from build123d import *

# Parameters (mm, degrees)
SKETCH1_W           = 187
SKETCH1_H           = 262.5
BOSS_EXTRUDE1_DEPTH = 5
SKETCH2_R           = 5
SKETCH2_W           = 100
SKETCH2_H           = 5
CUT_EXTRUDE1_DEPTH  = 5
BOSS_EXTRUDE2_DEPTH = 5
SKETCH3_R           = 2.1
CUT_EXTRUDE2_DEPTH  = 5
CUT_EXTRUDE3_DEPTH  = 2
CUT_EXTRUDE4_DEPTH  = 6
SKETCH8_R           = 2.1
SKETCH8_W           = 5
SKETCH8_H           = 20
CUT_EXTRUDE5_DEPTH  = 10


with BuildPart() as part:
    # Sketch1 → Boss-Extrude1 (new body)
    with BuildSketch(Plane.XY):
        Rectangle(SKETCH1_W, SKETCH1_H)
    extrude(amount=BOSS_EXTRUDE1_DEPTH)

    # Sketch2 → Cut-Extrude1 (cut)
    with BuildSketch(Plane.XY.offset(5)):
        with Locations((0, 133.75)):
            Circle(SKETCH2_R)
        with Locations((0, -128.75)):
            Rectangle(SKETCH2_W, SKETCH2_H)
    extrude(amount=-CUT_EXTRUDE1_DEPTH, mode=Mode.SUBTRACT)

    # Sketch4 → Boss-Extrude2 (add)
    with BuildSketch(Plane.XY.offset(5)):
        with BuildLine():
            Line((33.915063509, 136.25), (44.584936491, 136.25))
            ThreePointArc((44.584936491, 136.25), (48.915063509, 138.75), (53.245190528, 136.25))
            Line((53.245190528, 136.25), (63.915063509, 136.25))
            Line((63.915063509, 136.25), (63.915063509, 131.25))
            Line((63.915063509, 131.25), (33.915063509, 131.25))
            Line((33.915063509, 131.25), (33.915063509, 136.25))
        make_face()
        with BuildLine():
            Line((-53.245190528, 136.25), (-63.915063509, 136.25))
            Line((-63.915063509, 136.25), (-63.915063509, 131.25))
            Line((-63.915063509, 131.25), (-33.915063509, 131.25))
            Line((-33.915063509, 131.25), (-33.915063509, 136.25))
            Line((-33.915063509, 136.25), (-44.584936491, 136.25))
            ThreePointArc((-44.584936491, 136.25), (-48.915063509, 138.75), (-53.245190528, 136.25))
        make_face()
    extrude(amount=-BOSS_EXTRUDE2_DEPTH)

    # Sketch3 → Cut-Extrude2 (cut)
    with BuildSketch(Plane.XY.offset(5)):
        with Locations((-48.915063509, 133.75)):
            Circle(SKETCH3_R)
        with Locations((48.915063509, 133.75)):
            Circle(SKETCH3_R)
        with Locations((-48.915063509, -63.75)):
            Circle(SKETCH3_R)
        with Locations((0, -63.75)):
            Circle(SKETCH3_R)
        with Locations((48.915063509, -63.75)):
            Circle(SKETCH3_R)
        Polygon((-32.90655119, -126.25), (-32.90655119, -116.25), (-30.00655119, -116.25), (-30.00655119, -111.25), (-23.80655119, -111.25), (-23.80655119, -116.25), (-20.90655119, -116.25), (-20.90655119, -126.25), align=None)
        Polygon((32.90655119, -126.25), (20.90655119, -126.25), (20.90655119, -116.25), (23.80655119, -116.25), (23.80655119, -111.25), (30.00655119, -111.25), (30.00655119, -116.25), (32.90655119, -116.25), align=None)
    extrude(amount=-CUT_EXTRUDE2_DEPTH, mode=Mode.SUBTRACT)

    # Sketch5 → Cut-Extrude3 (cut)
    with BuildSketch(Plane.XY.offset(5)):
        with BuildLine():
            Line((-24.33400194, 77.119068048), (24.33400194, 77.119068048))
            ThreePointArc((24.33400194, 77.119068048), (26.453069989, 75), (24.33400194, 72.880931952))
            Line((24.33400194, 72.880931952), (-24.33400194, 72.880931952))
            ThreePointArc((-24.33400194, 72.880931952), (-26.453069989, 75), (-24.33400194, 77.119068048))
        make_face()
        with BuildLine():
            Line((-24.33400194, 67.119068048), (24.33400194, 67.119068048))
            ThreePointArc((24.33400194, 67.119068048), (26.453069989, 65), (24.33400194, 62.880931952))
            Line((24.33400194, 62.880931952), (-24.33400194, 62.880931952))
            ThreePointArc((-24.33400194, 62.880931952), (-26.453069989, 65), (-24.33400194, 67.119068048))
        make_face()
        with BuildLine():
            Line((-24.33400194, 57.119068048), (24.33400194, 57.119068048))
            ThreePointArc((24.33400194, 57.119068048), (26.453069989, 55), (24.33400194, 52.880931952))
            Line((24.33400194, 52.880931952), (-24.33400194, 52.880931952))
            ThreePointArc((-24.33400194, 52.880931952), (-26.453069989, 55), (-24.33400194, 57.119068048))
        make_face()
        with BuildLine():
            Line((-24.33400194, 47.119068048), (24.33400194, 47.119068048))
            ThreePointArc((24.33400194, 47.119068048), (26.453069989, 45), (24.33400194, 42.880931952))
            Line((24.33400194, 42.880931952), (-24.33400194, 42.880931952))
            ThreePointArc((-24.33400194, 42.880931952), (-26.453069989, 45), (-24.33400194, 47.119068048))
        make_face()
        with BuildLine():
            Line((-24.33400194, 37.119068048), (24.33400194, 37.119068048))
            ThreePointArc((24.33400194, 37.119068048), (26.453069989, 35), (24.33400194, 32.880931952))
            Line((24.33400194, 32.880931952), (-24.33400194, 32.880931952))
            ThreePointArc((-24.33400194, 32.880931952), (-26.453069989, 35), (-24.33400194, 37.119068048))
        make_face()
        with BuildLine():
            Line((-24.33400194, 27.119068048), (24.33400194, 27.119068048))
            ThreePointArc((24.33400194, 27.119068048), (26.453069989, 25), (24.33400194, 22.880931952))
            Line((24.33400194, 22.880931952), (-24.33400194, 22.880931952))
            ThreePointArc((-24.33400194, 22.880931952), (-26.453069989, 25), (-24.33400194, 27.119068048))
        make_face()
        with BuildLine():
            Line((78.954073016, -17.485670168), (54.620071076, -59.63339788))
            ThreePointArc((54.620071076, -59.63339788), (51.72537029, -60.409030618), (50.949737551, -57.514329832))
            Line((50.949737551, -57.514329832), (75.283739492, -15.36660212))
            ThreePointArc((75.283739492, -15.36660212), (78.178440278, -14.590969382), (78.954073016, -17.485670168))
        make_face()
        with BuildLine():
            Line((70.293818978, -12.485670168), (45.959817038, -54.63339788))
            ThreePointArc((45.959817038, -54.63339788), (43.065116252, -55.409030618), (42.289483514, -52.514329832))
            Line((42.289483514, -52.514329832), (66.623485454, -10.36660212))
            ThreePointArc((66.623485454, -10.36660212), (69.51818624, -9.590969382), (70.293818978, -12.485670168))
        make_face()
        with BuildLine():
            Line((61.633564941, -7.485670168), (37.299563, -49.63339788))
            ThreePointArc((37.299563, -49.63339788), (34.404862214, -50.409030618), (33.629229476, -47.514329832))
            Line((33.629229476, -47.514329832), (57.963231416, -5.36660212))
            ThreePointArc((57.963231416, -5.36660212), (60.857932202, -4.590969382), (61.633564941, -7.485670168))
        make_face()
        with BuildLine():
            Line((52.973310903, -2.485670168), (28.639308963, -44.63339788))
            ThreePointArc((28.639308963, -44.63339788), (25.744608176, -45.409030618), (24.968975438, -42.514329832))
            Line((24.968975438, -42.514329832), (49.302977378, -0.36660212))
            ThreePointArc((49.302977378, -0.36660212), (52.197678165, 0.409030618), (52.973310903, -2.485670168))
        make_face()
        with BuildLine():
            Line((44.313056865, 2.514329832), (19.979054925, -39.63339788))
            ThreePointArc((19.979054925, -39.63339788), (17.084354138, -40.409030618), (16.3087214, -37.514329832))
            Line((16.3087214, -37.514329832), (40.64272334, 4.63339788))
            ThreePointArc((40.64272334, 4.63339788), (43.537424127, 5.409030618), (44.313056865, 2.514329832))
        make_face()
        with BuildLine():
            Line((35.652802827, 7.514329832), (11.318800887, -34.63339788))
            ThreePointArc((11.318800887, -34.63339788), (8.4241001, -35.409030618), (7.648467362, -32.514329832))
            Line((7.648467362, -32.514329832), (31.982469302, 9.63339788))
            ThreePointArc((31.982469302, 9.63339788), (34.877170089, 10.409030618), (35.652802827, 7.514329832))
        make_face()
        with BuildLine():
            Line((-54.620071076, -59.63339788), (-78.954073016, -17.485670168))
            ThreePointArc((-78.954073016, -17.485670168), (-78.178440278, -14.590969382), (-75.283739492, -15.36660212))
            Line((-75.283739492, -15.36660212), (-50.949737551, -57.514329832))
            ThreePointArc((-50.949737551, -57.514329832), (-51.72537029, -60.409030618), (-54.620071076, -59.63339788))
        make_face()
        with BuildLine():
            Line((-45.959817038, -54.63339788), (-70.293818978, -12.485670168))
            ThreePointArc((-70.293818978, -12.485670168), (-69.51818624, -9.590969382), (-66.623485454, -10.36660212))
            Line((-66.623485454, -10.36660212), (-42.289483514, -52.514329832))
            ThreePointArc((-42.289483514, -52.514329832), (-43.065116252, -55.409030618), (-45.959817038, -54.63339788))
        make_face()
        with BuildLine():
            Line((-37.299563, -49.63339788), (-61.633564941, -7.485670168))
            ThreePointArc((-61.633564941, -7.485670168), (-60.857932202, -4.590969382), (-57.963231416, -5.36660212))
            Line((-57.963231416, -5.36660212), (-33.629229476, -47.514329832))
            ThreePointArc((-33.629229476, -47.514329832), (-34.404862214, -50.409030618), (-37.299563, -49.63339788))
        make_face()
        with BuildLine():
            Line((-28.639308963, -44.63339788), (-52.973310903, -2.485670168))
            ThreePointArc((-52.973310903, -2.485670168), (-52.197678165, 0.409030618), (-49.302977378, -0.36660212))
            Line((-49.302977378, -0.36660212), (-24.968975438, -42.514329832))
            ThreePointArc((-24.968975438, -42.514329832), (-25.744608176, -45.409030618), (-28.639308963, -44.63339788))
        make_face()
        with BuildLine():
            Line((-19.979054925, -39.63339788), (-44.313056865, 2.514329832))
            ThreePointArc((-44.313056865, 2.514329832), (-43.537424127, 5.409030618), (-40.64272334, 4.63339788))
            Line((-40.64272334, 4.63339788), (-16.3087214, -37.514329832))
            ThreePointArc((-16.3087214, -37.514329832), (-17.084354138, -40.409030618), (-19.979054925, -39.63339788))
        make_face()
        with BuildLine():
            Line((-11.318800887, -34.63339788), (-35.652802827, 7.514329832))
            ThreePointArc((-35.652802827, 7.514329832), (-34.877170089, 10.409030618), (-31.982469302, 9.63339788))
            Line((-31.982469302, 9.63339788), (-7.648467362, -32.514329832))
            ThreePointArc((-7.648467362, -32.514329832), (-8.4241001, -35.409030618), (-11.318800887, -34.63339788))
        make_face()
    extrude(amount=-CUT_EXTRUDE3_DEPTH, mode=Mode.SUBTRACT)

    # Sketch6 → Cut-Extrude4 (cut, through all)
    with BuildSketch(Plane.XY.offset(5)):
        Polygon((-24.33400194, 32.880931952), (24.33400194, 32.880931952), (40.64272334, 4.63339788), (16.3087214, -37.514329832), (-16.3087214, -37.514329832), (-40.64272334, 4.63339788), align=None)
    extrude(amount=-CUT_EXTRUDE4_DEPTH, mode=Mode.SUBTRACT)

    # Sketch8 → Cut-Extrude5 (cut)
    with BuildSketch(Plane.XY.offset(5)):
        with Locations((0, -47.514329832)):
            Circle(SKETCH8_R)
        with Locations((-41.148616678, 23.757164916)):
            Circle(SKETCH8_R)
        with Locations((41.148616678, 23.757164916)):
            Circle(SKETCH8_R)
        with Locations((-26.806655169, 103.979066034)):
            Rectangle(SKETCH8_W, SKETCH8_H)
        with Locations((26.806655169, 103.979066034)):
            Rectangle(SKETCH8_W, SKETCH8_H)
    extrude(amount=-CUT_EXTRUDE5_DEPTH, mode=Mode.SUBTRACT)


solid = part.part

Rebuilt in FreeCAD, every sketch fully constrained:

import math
import FreeCAD as App
import Part
import Sketcher
Q = App.Units.Quantity


def add_polygon(sketch, points):
    """Adds a closed chain of lines whose ends are joined by coincident constraints."""
    first, n = sketch.GeometryCount, len(points)
    for a, b in zip(points, points[1:] + points[:1]):
        sketch.addGeometry(Part.LineSegment(App.Vector(*a, 0), App.Vector(*b, 0)), False)
    for i in range(n):
        sketch.addConstraint(Sketcher.Constraint("Coincident", first + i, 2, first + (i + 1) % n, 1))

doc = App.newDocument("Part")
params = doc.addObject("Spreadsheet::Sheet", "Params")
for row, (alias, value) in enumerate([
    ("sketch1_width", "187 mm"),
    ("sketch1_height", "262.5 mm"),
    ("pad1_length", "5 mm"),
    ("sketch2_diameter", "10 mm"),
    ("sketch2_width", "100 mm"),
    ("sketch2_height", "5 mm"),
    ("pocket1_length", "5 mm"),
    ("sketch3_radius", "5 mm"),
    ("sketch3_width", "30 mm"),
    ("sketch3_height", "5 mm"),
    ("pad2_length", "5 mm"),
    ("sketch4_diameter", "4.2 mm"),
    ("sketch4_width", "12 mm"),
    ("sketch4_height", "10 mm"),
    ("sketch4_height2", "5 mm"),
    ("sketch4_width2", "2.9 mm"),
    ("pocket2_length", "5 mm"),
    ("pocket3_length", "2 mm"),
    ("sketch7_diameter", "4.2 mm"),
    ("sketch7_width", "5 mm"),
    ("sketch7_height", "20 mm"),
    ("pocket5_length", "10 mm"),
], start=1):
    params.set(f"A{row}", alias)
    params.set(f"B{row}", "=" + value)
    params.setAlias(f"B{row}", alias)

body = doc.addObject("PartDesign::Body", "Body")

sketch1 = doc.addObject("Sketcher::SketchObject", "Sketch")
body.addObject(sketch1)
sketch1.AttachmentSupport = (doc.XY_Plane, [""])
sketch1.MapMode = "FlatFace"
add_polygon(sketch1, [(-93.5, 131.25), (-93.5, -131.25), (93.5, -131.25), (93.5, 131.25)])
sketch1.addConstraint([
    Sketcher.Constraint("Vertical", 0),
    Sketcher.Constraint("Horizontal", 1),
    Sketcher.Constraint("Vertical", 2),
    Sketcher.Constraint("Horizontal", 3),
    Sketcher.Constraint("Symmetric", 0, 2, 2, 2, -1, 1),
    Sketcher.Constraint("DistanceX", 1, 1, 1, 2, 187.0),
    Sketcher.Constraint("DistanceY", 0, 2, 0, 1, 262.5),
])
sketch1.setExpression("Constraints[9]", "Params.sketch1_width")
sketch1.setExpression("Constraints[10]", "Params.sketch1_height")
pad1 = doc.addObject("PartDesign::Pad", "Pad")
body.addObject(pad1)
pad1.Profile = sketch1
pad1.setExpression("Length", "Params.pad1_length")

sketch2 = doc.addObject("Sketcher::SketchObject", "Sketch001")
body.addObject(sketch2)
sketch2.AttachmentSupport = (doc.XY_Plane, [""])
sketch2.MapMode = "FlatFace"
sketch2.AttachmentOffset = App.Placement(App.Vector(0, 0, 5), App.Rotation())
sketch2.addGeometry(Part.Circle(App.Vector(0, 133.75, 0), App.Vector(0, 0, 1), 5), False)
add_polygon(sketch2, [(-50, -126.25), (-50, -131.25), (50, -131.25), (50, -126.25)])
sketch2.addConstraint([
    Sketcher.Constraint("Vertical", 1),
    Sketcher.Constraint("Horizontal", 2),
    Sketcher.Constraint("Vertical", 3),
    Sketcher.Constraint("Horizontal", 4),
    Sketcher.Constraint("PointOnObject", 0, 3, -2),
    Sketcher.Constraint("Diameter", 0, 10.0),
    Sketcher.Constraint("DistanceX", 2, 1, 2, 2, 100.0),
    Sketcher.Constraint("DistanceY", 1, 2, 1, 1, 5.0),
    Sketcher.Constraint("DistanceX", 1, 2, -1, 1, 50.0),
    Sketcher.Constraint("DistanceY", 1, 2, 0, 3, 265.0),
    Sketcher.Constraint("DistanceY", -1, 1, 0, 3, 133.75),
])
sketch2.setExpression("Constraints[9]", "Params.sketch2_diameter")
sketch2.setExpression("Constraints[10]", "Params.sketch2_width")
sketch2.setExpression("Constraints[11]", "Params.sketch2_height")
pocket1 = doc.addObject("PartDesign::Pocket", "Pocket")
body.addObject(pocket1)
pocket1.Profile = sketch2
pocket1.setExpression("Length", "Params.pocket1_length")

sketch3 = doc.addObject("Sketcher::SketchObject", "Sketch002")
body.addObject(sketch3)
sketch3.AttachmentSupport = (doc.XY_Plane, [""])
sketch3.MapMode = "FlatFace"
sketch3.AttachmentOffset = App.Placement(App.Vector(0, 0, 5), App.Rotation())
sketch3.addGeometry([
    Part.LineSegment(App.Vector(44.584936, 136.25, 0), App.Vector(33.915064, 136.25, 0)),
    Part.LineSegment(App.Vector(33.915064, 136.25, 0), App.Vector(33.915064, 131.25, 0)),
    Part.LineSegment(App.Vector(33.915064, 131.25, 0), App.Vector(63.915064, 131.25, 0)),
    Part.LineSegment(App.Vector(63.915064, 131.25, 0), App.Vector(63.915064, 136.25, 0)),
    Part.LineSegment(App.Vector(63.915064, 136.25, 0), App.Vector(53.245191, 136.25, 0)),
    Part.ArcOfCircle(Part.Circle(App.Vector(48.915064, 133.75, 0), App.Vector(0, 0, 1), 5), math.radians(30), math.radians(150)),
    Part.LineSegment(App.Vector(-53.245191, 136.25, 0), App.Vector(-63.915064, 136.25, 0)),
    Part.LineSegment(App.Vector(-63.915064, 136.25, 0), App.Vector(-63.915064, 131.25, 0)),
    Part.LineSegment(App.Vector(-63.915064, 131.25, 0), App.Vector(-33.915064, 131.25, 0)),
    Part.LineSegment(App.Vector(-33.915064, 131.25, 0), App.Vector(-33.915064, 136.25, 0)),
    Part.LineSegment(App.Vector(-33.915064, 136.25, 0), App.Vector(-44.584936, 136.25, 0)),
    Part.ArcOfCircle(Part.Circle(App.Vector(-48.915064, 133.75, 0), App.Vector(0, 0, 1), 5), math.radians(30), math.radians(150)),
], False)
sketch3.addConstraint([
    Sketcher.Constraint("Coincident", 0, 2, 1, 1),
    Sketcher.Constraint("Coincident", 1, 2, 2, 1),
    Sketcher.Constraint("Coincident", 2, 2, 3, 1),
    Sketcher.Constraint("Coincident", 3, 2, 4, 1),
    Sketcher.Constraint("Coincident", 4, 2, 5, 1),
    Sketcher.Constraint("Coincident", 5, 2, 0, 1),
    Sketcher.Constraint("Coincident", 6, 2, 7, 1),
    Sketcher.Constraint("Coincident", 7, 2, 8, 1),
    Sketcher.Constraint("Coincident", 8, 2, 9, 1),
    Sketcher.Constraint("Coincident", 9, 2, 10, 1),
    Sketcher.Constraint("Coincident", 10, 2, 11, 1),
    Sketcher.Constraint("Coincident", 11, 2, 6, 1),
    Sketcher.Constraint("Horizontal", 0),
    Sketcher.Constraint("Vertical", 1),
    Sketcher.Constraint("Horizontal", 2),
    Sketcher.Constraint("Vertical", 3),
    Sketcher.Constraint("Horizontal", 4),
    Sketcher.Constraint("Horizontal", 6),
    Sketcher.Constraint("Vertical", 7),
    Sketcher.Constraint("Horizontal", 8),
    Sketcher.Constraint("Vertical", 9),
    Sketcher.Constraint("Horizontal", 10),
    Sketcher.Constraint("Equal", 5, 11),
    Sketcher.Constraint("Symmetric", 5, 3, 11, 3, -2),
    Sketcher.Constraint("Symmetric", 3, 2, 6, 2, -2),
    Sketcher.Constraint("Symmetric", 1, 2, 8, 2, -2),
    Sketcher.Constraint("Horizontal", 0, 2, 3, 2),
    Sketcher.Constraint("Horizontal", 6, 2, 9, 2),
    Sketcher.Constraint("Equal", 0, 4),
    Sketcher.Constraint("Radius", 5, 5.0),
    Sketcher.Constraint("DistanceX", 2, 1, 2, 2, 30.0),
    Sketcher.Constraint("DistanceY", 1, 2, 1, 1, 5.0),
    Sketcher.Constraint("DistanceY", 5, 3, 0, 2, 2.5),
    Sketcher.Constraint("DistanceX", 6, 2, 5, 2, 108.5),
    Sketcher.Constraint("DistanceY", -1, 1, 5, 3, 133.75),
])
sketch3.setExpression("Constraints[29]", "Params.sketch3_radius")
sketch3.setExpression("Constraints[30]", "Params.sketch3_width")
sketch3.setExpression("Constraints[31]", "Params.sketch3_height")
pad2 = doc.addObject("PartDesign::Pad", "Pad001")
body.addObject(pad2)
pad2.Profile = sketch3
pad2.setExpression("Length", "Params.pad2_length")
pad2.Reversed = True

sketch4 = doc.addObject("Sketcher::SketchObject", "Sketch003")
body.addObject(sketch4)
sketch4.AttachmentSupport = (doc.XY_Plane, [""])
sketch4.MapMode = "FlatFace"
sketch4.AttachmentOffset = App.Placement(App.Vector(0, 0, 5), App.Rotation())
sketch4.addGeometry(Part.Circle(App.Vector(-48.915064, 133.75, 0), App.Vector(0, 0, 1), 2.1), False)
sketch4.addGeometry(Part.Circle(App.Vector(48.915064, 133.75, 0), App.Vector(0, 0, 1), 2.1), False)
sketch4.addGeometry(Part.Circle(App.Vector(-48.915064, -63.75, 0), App.Vector(0, 0, 1), 2.1), False)
sketch4.addGeometry(Part.Circle(App.Vector(0, -63.75, 0), App.Vector(0, 0, 1), 2.1), False)
sketch4.addGeometry(Part.Circle(App.Vector(48.915064, -63.75, 0), App.Vector(0, 0, 1), 2.1), False)
add_polygon(sketch4, [(-32.906551, -116.25), (-32.906551, -126.25), (-20.906551, -126.25), (-20.906551, -116.25), (-23.806551, -116.25), (-23.806551, -111.25), (-30.006551, -111.25), (-30.006551, -116.25)])
add_polygon(sketch4, [(20.906551, -126.25), (32.906551, -126.25), (32.906551, -116.25), (30.006551, -116.25), (30.006551, -111.25), (23.806551, -111.25), (23.806551, -116.25), (20.906551, -116.25)])
sketch4.addConstraint([
    Sketcher.Constraint("Vertical", 5),
    Sketcher.Constraint("Horizontal", 6),
    Sketcher.Constraint("Vertical", 7),
    Sketcher.Constraint("Horizontal", 8),
    Sketcher.Constraint("Vertical", 9),
    Sketcher.Constraint("Horizontal", 10),
    Sketcher.Constraint("Vertical", 11),
    Sketcher.Constraint("Horizontal", 12),
    Sketcher.Constraint("Horizontal", 13),
    Sketcher.Constraint("Vertical", 14),
    Sketcher.Constraint("Horizontal", 15),
    Sketcher.Constraint("Vertical", 16),
    Sketcher.Constraint("Horizontal", 17),
    Sketcher.Constraint("Vertical", 18),
    Sketcher.Constraint("Horizontal", 19),
    Sketcher.Constraint("Vertical", 20),
    Sketcher.Constraint("Equal", 0, 1),
    Sketcher.Constraint("Equal", 1, 2),
    Sketcher.Constraint("Equal", 2, 3),
    Sketcher.Constraint("Equal", 3, 4),
    Sketcher.Constraint("Symmetric", 0, 3, 1, 3, -2),
    Sketcher.Constraint("Symmetric", 2, 3, 4, 3, -2),
    Sketcher.Constraint("Symmetric", 5, 2, 13, 2, -2),
    Sketcher.Constraint("Symmetric", 11, 2, 15, 2, -2),
    Sketcher.Constraint("Symmetric", 9, 2, 17, 2, -2),
    Sketcher.Constraint("Symmetric", 7, 2, 19, 2, -2),
    Sketcher.Constraint("PointOnObject", 3, 3, -2),
    Sketcher.Constraint("Horizontal", 2, 3, 3, 3),
    Sketcher.Constraint("Horizontal", 8, 2, 11, 2),
    Sketcher.Constraint("Vertical", 0, 3, 2, 3),
    Sketcher.Constraint("Equal", 8, 12),
    Sketcher.Constraint("Diameter", 0, 4.2),
    Sketcher.Constraint("DistanceX", 6, 1, 6, 2, 12.0),
    Sketcher.Constraint("DistanceY", 5, 2, 5, 1, 10.0),
    Sketcher.Constraint("DistanceY", 9, 1, 9, 2, 5.0),
    Sketcher.Constraint("DistanceX", 8, 2, 8, 1, 2.9),
    Sketcher.Constraint("DistanceY", 5, 2, 0, 3, 260.0),
    Sketcher.Constraint("DistanceY", 2, 3, 0, 3, 197.5),
    Sketcher.Constraint("DistanceY", -1, 1, 0, 3, 133.75),
    Sketcher.Constraint("DistanceX", 5, 2, -1, 1, 32.906551),
    Sketcher.Constraint("DistanceX", 0, 3, -1, 1, 48.915064),
])
sketch4.setExpression("Constraints[47]", "Params.sketch4_diameter")
sketch4.setExpression("Constraints[48]", "Params.sketch4_width")
sketch4.setExpression("Constraints[49]", "Params.sketch4_height")
sketch4.setExpression("Constraints[50]", "Params.sketch4_height2")
sketch4.setExpression("Constraints[51]", "Params.sketch4_width2")
pocket2 = doc.addObject("PartDesign::Pocket", "Pocket001")
body.addObject(pocket2)
pocket2.Profile = sketch4
pocket2.setExpression("Length", "Params.pocket2_length")

sketch5 = doc.addObject("Sketcher::SketchObject", "Sketch004")
body.addObject(sketch5)
sketch5.AttachmentSupport = (doc.XY_Plane, [""])
sketch5.MapMode = "FlatFace"
sketch5.AttachmentOffset = App.Placement(App.Vector(0, 0, 5), App.Rotation())
sketch5.addGeometry([
    Part.LineSegment(App.Vector(24.334002, 77.119068, 0), App.Vector(-24.334002, 77.119068, 0)),
    Part.ArcOfCircle(Part.Circle(App.Vector(-24.334002, 75, 0), App.Vector(0, 0, 1), 2.119068), math.radians(90), math.radians(270)),
    Part.LineSegment(App.Vector(-24.334002, 72.880932, 0), App.Vector(24.334002, 72.880932, 0)),
    Part.ArcOfCircle(Part.Circle(App.Vector(24.334002, 75, 0), App.Vector(0, 0, 1), 2.119068), math.radians(-90), math.radians(90)),
    Part.LineSegment(App.Vector(24.334002, 67.119068, 0), App.Vector(-24.334002, 67.119068, 0)),
    Part.ArcOfCircle(Part.Circle(App.Vector(-24.334002, 65, 0), App.Vector(0, 0, 1), 2.119068), math.radians(90), math.radians(270)),
    Part.LineSegment(App.Vector(-24.334002, 62.880932, 0), App.Vector(24.334002, 62.880932, 0)),
    Part.ArcOfCircle(Part.Circle(App.Vector(24.334002, 65, 0), App.Vector(0, 0, 1), 2.119068), math.radians(-90), math.radians(90)),
    Part.LineSegment(App.Vector(24.334002, 57.119068, 0), App.Vector(-24.334002, 57.119068, 0)),
    Part.ArcOfCircle(Part.Circle(App.Vector(-24.334002, 55, 0), App.Vector(0, 0, 1), 2.119068), math.radians(90), math.radians(270)),
    Part.LineSegment(App.Vector(-24.334002, 52.880932, 0), App.Vector(24.334002, 52.880932, 0)),
    Part.ArcOfCircle(Part.Circle(App.Vector(24.334002, 55, 0), App.Vector(0, 0, 1), 2.119068), math.radians(-90), math.radians(90)),
    Part.LineSegment(App.Vector(24.334002, 47.119068, 0), App.Vector(-24.334002, 47.119068, 0)),
    Part.ArcOfCircle(Part.Circle(App.Vector(-24.334002, 45, 0), App.Vector(0, 0, 1), 2.119068), math.radians(90), math.radians(270)),
    Part.LineSegment(App.Vector(-24.334002, 42.880932, 0), App.Vector(24.334002, 42.880932, 0)),
    Part.ArcOfCircle(Part.Circle(App.Vector(24.334002, 45, 0), App.Vector(0, 0, 1), 2.119068), math.radians(-90), math.radians(90)),
    Part.LineSegment(App.Vector(24.334002, 37.119068, 0), App.Vector(-24.334002, 37.119068, 0)),
    Part.ArcOfCircle(Part.Circle(App.Vector(-24.334002, 35, 0), App.Vector(0, 0, 1), 2.119068), math.radians(90), math.radians(270)),
    Part.LineSegment(App.Vector(-24.334002, 32.880932, 0), App.Vector(24.334002, 32.880932, 0)),
    Part.ArcOfCircle(Part.Circle(App.Vector(24.334002, 35, 0), App.Vector(0, 0, 1), 2.119068), math.radians(-90), math.radians(90)),
    Part.LineSegment(App.Vector(24.334002, 27.119068, 0), App.Vector(-24.334002, 27.119068, 0)),
    Part.ArcOfCircle(Part.Circle(App.Vector(-24.334002, 25, 0), App.Vector(0, 0, 1), 2.119068), math.radians(90), math.radians(270)),
    Part.LineSegment(App.Vector(-24.334002, 22.880932, 0), App.Vector(24.334002, 22.880932, 0)),
    Part.ArcOfCircle(Part.Circle(App.Vector(24.334002, 25, 0), App.Vector(0, 0, 1), 2.119068), math.radians(-90), math.radians(90)),
    Part.LineSegment(App.Vector(54.620071, -59.633398, 0), App.Vector(78.954073, -17.48567, 0)),
    Part.ArcOfCircle(Part.Circle(App.Vector(77.118906, -16.426136, 0), App.Vector(0, 0, 1), 2.119068), math.radians(-30), math.radians(150)),
    Part.LineSegment(App.Vector(75.283739, -15.366602, 0), App.Vector(50.949738, -57.51433, 0)),
    Part.ArcOfCircle(Part.Circle(App.Vector(52.784904, -58.573864, 0), App.Vector(0, 0, 1), 2.119068), math.radians(150), math.radians(330)),
    Part.LineSegment(App.Vector(45.959817, -54.633398, 0), App.Vector(70.293819, -12.48567, 0)),
    Part.ArcOfCircle(Part.Circle(App.Vector(68.458652, -11.426136, 0), App.Vector(0, 0, 1), 2.119068), math.radians(-30), math.radians(150)),
    Part.LineSegment(App.Vector(66.623485, -10.366602, 0), App.Vector(42.289484, -52.51433, 0)),
    Part.ArcOfCircle(Part.Circle(App.Vector(44.12465, -53.573864, 0), App.Vector(0, 0, 1), 2.119068), math.radians(150), math.radians(330)),
    Part.LineSegment(App.Vector(37.299563, -49.633398, 0), App.Vector(61.633565, -7.48567, 0)),
    Part.ArcOfCircle(Part.Circle(App.Vector(59.798398, -6.426136, 0), App.Vector(0, 0, 1), 2.119068), math.radians(-30), math.radians(150)),
    Part.LineSegment(App.Vector(57.963231, -5.366602, 0), App.Vector(33.629229, -47.51433, 0)),
    Part.ArcOfCircle(Part.Circle(App.Vector(35.464396, -48.573864, 0), App.Vector(0, 0, 1), 2.119068), math.radians(150), math.radians(330)),
    Part.LineSegment(App.Vector(28.639309, -44.633398, 0), App.Vector(52.973311, -2.48567, 0)),
    Part.ArcOfCircle(Part.Circle(App.Vector(51.138144, -1.426136, 0), App.Vector(0, 0, 1), 2.119068), math.radians(-30), math.radians(150)),
    Part.LineSegment(App.Vector(49.302977, -0.366602, 0), App.Vector(24.968975, -42.51433, 0)),
    Part.ArcOfCircle(Part.Circle(App.Vector(26.804142, -43.573864, 0), App.Vector(0, 0, 1), 2.119068), math.radians(150), math.radians(330)),
    Part.LineSegment(App.Vector(19.979055, -39.633398, 0), App.Vector(44.313057, 2.51433, 0)),
    Part.ArcOfCircle(Part.Circle(App.Vector(42.47789, 3.573864, 0), App.Vector(0, 0, 1), 2.119068), math.radians(-30), math.radians(150)),
    Part.LineSegment(App.Vector(40.642723, 4.633398, 0), App.Vector(16.308721, -37.51433, 0)),
    Part.ArcOfCircle(Part.Circle(App.Vector(18.143888, -38.573864, 0), App.Vector(0, 0, 1), 2.119068), math.radians(150), math.radians(330)),
    Part.LineSegment(App.Vector(11.318801, -34.633398, 0), App.Vector(35.652803, 7.51433, 0)),
    Part.ArcOfCircle(Part.Circle(App.Vector(33.817636, 8.573864, 0), App.Vector(0, 0, 1), 2.119068), math.radians(-30), math.radians(150)),
    Part.LineSegment(App.Vector(31.982469, 9.633398, 0), App.Vector(7.648467, -32.51433, 0)),
    Part.ArcOfCircle(Part.Circle(App.Vector(9.483634, -33.573864, 0), App.Vector(0, 0, 1), 2.119068), math.radians(150), math.radians(330)),
    Part.LineSegment(App.Vector(-78.954073, -17.48567, 0), App.Vector(-54.620071, -59.633398, 0)),
    Part.ArcOfCircle(Part.Circle(App.Vector(-52.784904, -58.573864, 0), App.Vector(0, 0, 1), 2.119068), math.radians(-150), math.radians(30)),
    Part.LineSegment(App.Vector(-50.949738, -57.51433, 0), App.Vector(-75.283739, -15.366602, 0)),
    Part.ArcOfCircle(Part.Circle(App.Vector(-77.118906, -16.426136, 0), App.Vector(0, 0, 1), 2.119068), math.radians(30), math.radians(210)),
    Part.LineSegment(App.Vector(-70.293819, -12.48567, 0), App.Vector(-45.959817, -54.633398, 0)),
    Part.ArcOfCircle(Part.Circle(App.Vector(-44.12465, -53.573864, 0), App.Vector(0, 0, 1), 2.119068), math.radians(-150), math.radians(30)),
    Part.LineSegment(App.Vector(-42.289484, -52.51433, 0), App.Vector(-66.623485, -10.366602, 0)),
    Part.ArcOfCircle(Part.Circle(App.Vector(-68.458652, -11.426136, 0), App.Vector(0, 0, 1), 2.119068), math.radians(30), math.radians(210)),
    Part.LineSegment(App.Vector(-61.633565, -7.48567, 0), App.Vector(-37.299563, -49.633398, 0)),
    Part.ArcOfCircle(Part.Circle(App.Vector(-35.464396, -48.573864, 0), App.Vector(0, 0, 1), 2.119068), math.radians(-150), math.radians(30)),
    Part.LineSegment(App.Vector(-33.629229, -47.51433, 0), App.Vector(-57.963231, -5.366602, 0)),
    Part.ArcOfCircle(Part.Circle(App.Vector(-59.798398, -6.426136, 0), App.Vector(0, 0, 1), 2.119068), math.radians(30), math.radians(210)),
    Part.LineSegment(App.Vector(-52.973311, -2.48567, 0), App.Vector(-28.639309, -44.633398, 0)),
    Part.ArcOfCircle(Part.Circle(App.Vector(-26.804142, -43.573864, 0), App.Vector(0, 0, 1), 2.119068), math.radians(-150), math.radians(30)),
    Part.LineSegment(App.Vector(-24.968975, -42.51433, 0), App.Vector(-49.302977, -0.366602, 0)),
    Part.ArcOfCircle(Part.Circle(App.Vector(-51.138144, -1.426136, 0), App.Vector(0, 0, 1), 2.119068), math.radians(30), math.radians(210)),
    Part.LineSegment(App.Vector(-44.313057, 2.51433, 0), App.Vector(-19.979055, -39.633398, 0)),
    Part.ArcOfCircle(Part.Circle(App.Vector(-18.143888, -38.573864, 0), App.Vector(0, 0, 1), 2.119068), math.radians(-150), math.radians(30)),
    Part.LineSegment(App.Vector(-16.308721, -37.51433, 0), App.Vector(-40.642723, 4.633398, 0)),
    Part.ArcOfCircle(Part.Circle(App.Vector(-42.47789, 3.573864, 0), App.Vector(0, 0, 1), 2.119068), math.radians(30), math.radians(210)),
    Part.LineSegment(App.Vector(-35.652803, 7.51433, 0), App.Vector(-11.318801, -34.633398, 0)),
    Part.ArcOfCircle(Part.Circle(App.Vector(-9.483634, -33.573864, 0), App.Vector(0, 0, 1), 2.119068), math.radians(-150), math.radians(30)),
    Part.LineSegment(App.Vector(-7.648467, -32.51433, 0), App.Vector(-31.982469, 9.633398, 0)),
    Part.ArcOfCircle(Part.Circle(App.Vector(-33.817636, 8.573864, 0), App.Vector(0, 0, 1), 2.119068), math.radians(30), math.radians(210)),
], False)
sketch5.addConstraint([
    Sketcher.Constraint("Tangent", 0, 2, 1, 1),
    Sketcher.Constraint("Tangent", 1, 2, 2, 1),
    Sketcher.Constraint("Tangent", 2, 2, 3, 1),
    Sketcher.Constraint("Tangent", 3, 2, 0, 1),
    Sketcher.Constraint("Tangent", 4, 2, 5, 1),
    Sketcher.Constraint("Tangent", 5, 2, 6, 1),
    Sketcher.Constraint("Tangent", 6, 2, 7, 1),
    Sketcher.Constraint("Tangent", 7, 2, 4, 1),
    Sketcher.Constraint("Tangent", 8, 2, 9, 1),
    Sketcher.Constraint("Tangent", 9, 2, 10, 1),
    Sketcher.Constraint("Tangent", 10, 2, 11, 1),
    Sketcher.Constraint("Tangent", 11, 2, 8, 1),
    Sketcher.Constraint("Tangent", 12, 2, 13, 1),
    Sketcher.Constraint("Tangent", 13, 2, 14, 1),
    Sketcher.Constraint("Tangent", 14, 2, 15, 1),
    Sketcher.Constraint("Tangent", 15, 2, 12, 1),
    Sketcher.Constraint("Tangent", 16, 2, 17, 1),
    Sketcher.Constraint("Tangent", 17, 2, 18, 1),
    Sketcher.Constraint("Tangent", 18, 2, 19, 1),
    Sketcher.Constraint("Tangent", 19, 2, 16, 1),
    Sketcher.Constraint("Tangent", 20, 2, 21, 1),
    Sketcher.Constraint("Tangent", 21, 2, 22, 1),
    Sketcher.Constraint("Tangent", 22, 2, 23, 1),
    Sketcher.Constraint("Tangent", 23, 2, 20, 1),
    Sketcher.Constraint("Tangent", 24, 2, 25, 1),
    Sketcher.Constraint("Tangent", 25, 2, 26, 1),
    Sketcher.Constraint("Tangent", 26, 2, 27, 1),
    Sketcher.Constraint("Tangent", 27, 2, 24, 1),
    Sketcher.Constraint("Tangent", 28, 2, 29, 1),
    Sketcher.Constraint("Tangent", 29, 2, 30, 1),
    Sketcher.Constraint("Tangent", 30, 2, 31, 1),
    Sketcher.Constraint("Tangent", 31, 2, 28, 1),
    Sketcher.Constraint("Tangent", 32, 2, 33, 1),
    Sketcher.Constraint("Tangent", 33, 2, 34, 1),
    Sketcher.Constraint("Tangent", 34, 2, 35, 1),
    Sketcher.Constraint("Tangent", 35, 2, 32, 1),
    Sketcher.Constraint("Tangent", 36, 2, 37, 1),
    Sketcher.Constraint("Tangent", 37, 2, 38, 1),
    Sketcher.Constraint("Tangent", 38, 2, 39, 1),
    Sketcher.Constraint("Tangent", 39, 2, 36, 1),
    Sketcher.Constraint("Tangent", 40, 2, 41, 1),
    Sketcher.Constraint("Tangent", 41, 2, 42, 1),
    Sketcher.Constraint("Tangent", 42, 2, 43, 1),
    Sketcher.Constraint("Tangent", 43, 2, 40, 1),
    Sketcher.Constraint("Tangent", 44, 2, 45, 1),
    Sketcher.Constraint("Tangent", 45, 2, 46, 1),
    Sketcher.Constraint("Tangent", 46, 2, 47, 1),
    Sketcher.Constraint("Tangent", 47, 2, 44, 1),
    Sketcher.Constraint("Tangent", 48, 2, 49, 1),
    Sketcher.Constraint("Tangent", 49, 2, 50, 1),
    Sketcher.Constraint("Tangent", 50, 2, 51, 1),
    Sketcher.Constraint("Tangent", 51, 2, 48, 1),
    Sketcher.Constraint("Tangent", 52, 2, 53, 1),
    Sketcher.Constraint("Tangent", 53, 2, 54, 1),
    Sketcher.Constraint("Tangent", 54, 2, 55, 1),
    Sketcher.Constraint("Tangent", 55, 2, 52, 1),
    Sketcher.Constraint("Tangent", 56, 2, 57, 1),
    Sketcher.Constraint("Tangent", 57, 2, 58, 1),
    Sketcher.Constraint("Tangent", 58, 2, 59, 1),
    Sketcher.Constraint("Tangent", 59, 2, 56, 1),
    Sketcher.Constraint("Tangent", 60, 2, 61, 1),
    Sketcher.Constraint("Tangent", 61, 2, 62, 1),
    Sketcher.Constraint("Tangent", 62, 2, 63, 1),
    Sketcher.Constraint("Tangent", 63, 2, 60, 1),
    Sketcher.Constraint("Tangent", 64, 2, 65, 1),
    Sketcher.Constraint("Tangent", 65, 2, 66, 1),
    Sketcher.Constraint("Tangent", 66, 2, 67, 1),
    Sketcher.Constraint("Tangent", 67, 2, 64, 1),
    Sketcher.Constraint("Tangent", 68, 2, 69, 1),
    Sketcher.Constraint("Tangent", 69, 2, 70, 1),
    Sketcher.Constraint("Tangent", 70, 2, 71, 1),
    Sketcher.Constraint("Tangent", 71, 2, 68, 1),
    Sketcher.Constraint("Horizontal", 0),
    Sketcher.Constraint("Horizontal", 2),
    Sketcher.Constraint("Horizontal", 4),
    Sketcher.Constraint("Horizontal", 6),
    Sketcher.Constraint("Horizontal", 8),
    Sketcher.Constraint("Horizontal", 10),
    Sketcher.Constraint("Horizontal", 12),
    Sketcher.Constraint("Horizontal", 14),
    Sketcher.Constraint("Horizontal", 16),
    Sketcher.Constraint("Horizontal", 18),
    Sketcher.Constraint("Horizontal", 20),
    Sketcher.Constraint("Horizontal", 22),
    Sketcher.Constraint("Equal", 3, 5),
    Sketcher.Constraint("Equal", 7, 9),
    Sketcher.Constraint("Equal", 11, 13),
    Sketcher.Constraint("Equal", 15, 17),
    Sketcher.Constraint("Equal", 19, 21),
    Sketcher.Constraint("Equal", 23, 25),
    Sketcher.Constraint("Equal", 25, 27),
    Sketcher.Constraint("Equal", 27, 29),
    Sketcher.Constraint("Equal", 29, 31),
    Sketcher.Constraint("Equal", 31, 33),
    Sketcher.Constraint("Equal", 33, 35),
    Sketcher.Constraint("Equal", 35, 37),
    Sketcher.Constraint("Equal", 37, 39),
    Sketcher.Constraint("Equal", 39, 41),
    Sketcher.Constraint("Equal", 41, 43),
    Sketcher.Constraint("Equal", 43, 45),
    Sketcher.Constraint("Equal", 45, 47),
    Sketcher.Constraint("Equal", 47, 49),
    Sketcher.Constraint("Equal", 49, 51),
    Sketcher.Constraint("Equal", 51, 53),
    Sketcher.Constraint("Equal", 53, 55),
    Sketcher.Constraint("Equal", 55, 57),
    Sketcher.Constraint("Equal", 57, 59),
    Sketcher.Constraint("Equal", 59, 61),
    Sketcher.Constraint("Equal", 61, 63),
    Sketcher.Constraint("Equal", 63, 65),
    Sketcher.Constraint("Equal", 65, 67),
    Sketcher.Constraint("Equal", 67, 69),
    Sketcher.Constraint("Equal", 69, 71),
    Sketcher.Constraint("Symmetric", 27, 3, 49, 3, -2),
    Sketcher.Constraint("Symmetric", 25, 3, 51, 3, -2),
    Sketcher.Constraint("Symmetric", 31, 3, 53, 3, -2),
    Sketcher.Constraint("Symmetric", 29, 3, 55, 3, -2),
    Sketcher.Constraint("Symmetric", 35, 3, 57, 3, -2),
    Sketcher.Constraint("Symmetric", 33, 3, 59, 3, -2),
    Sketcher.Constraint("Symmetric", 39, 3, 61, 3, -2),
    Sketcher.Constraint("Symmetric", 37, 3, 63, 3, -2),
    Sketcher.Constraint("Symmetric", 43, 3, 65, 3, -2),
    Sketcher.Constraint("Symmetric", 41, 3, 67, 3, -2),
    Sketcher.Constraint("Symmetric", 47, 3, 69, 3, -2),
    Sketcher.Constraint("Symmetric", 45, 3, 71, 3, -2),
    Sketcher.Constraint("Parallel", 26, 28),
    Sketcher.Constraint("Parallel", 30, 32),
    Sketcher.Constraint("Parallel", 34, 36),
    Sketcher.Constraint("Parallel", 38, 40),
    Sketcher.Constraint("Parallel", 42, 44),
    Sketcher.Constraint("Vertical", 1, 3, 5, 3),
    Sketcher.Constraint("Vertical", 3, 3, 7, 3),
    Sketcher.Constraint("Vertical", 5, 3, 9, 3),
    Sketcher.Constraint("Vertical", 7, 3, 11, 3),
    Sketcher.Constraint("Vertical", 9, 3, 13, 3),
    Sketcher.Constraint("Vertical", 11, 3, 15, 3),
    Sketcher.Constraint("Vertical", 13, 3, 17, 3),
    Sketcher.Constraint("Vertical", 15, 3, 19, 3),
    Sketcher.Constraint("Vertical", 17, 3, 21, 3),
    Sketcher.Constraint("Vertical", 19, 3, 23, 3),
    Sketcher.Constraint("Equal", 26, 28),
    Sketcher.Constraint("Equal", 30, 32),
    Sketcher.Constraint("Equal", 34, 36),
    Sketcher.Constraint("Equal", 38, 40),
    Sketcher.Constraint("Equal", 42, 44),
    Sketcher.Constraint("Angle", 24, Q("60 deg")),
    Sketcher.Constraint("DistanceY", -1, 1, 1, 3, 75.0),
    Sketcher.Constraint("DistanceY", -1, 1, 5, 3, 65.0),
    Sketcher.Constraint("DistanceY", -1, 1, 9, 3, 55.0),
    Sketcher.Constraint("DistanceY", -1, 1, 13, 3, 45.0),
    Sketcher.Constraint("DistanceY", -1, 1, 17, 3, 35.0),
    Sketcher.Constraint("DistanceY", -1, 1, 21, 3, 25.0),
    Sketcher.Constraint("Radius", 1, 2.119068),
    Sketcher.Constraint("DistanceX", 1, 3, -1, 1, 24.334002),
    Sketcher.Constraint("DistanceX", -1, 1, 3, 3, 24.334002),
    Sketcher.Constraint("DistanceX", -1, 1, 33, 3, 59.798398),
    Sketcher.Constraint("DistanceX", -1, 1, 47, 2, 11.318801),
    Sketcher.Constraint("DistanceX", -1, 1, 31, 3, 44.12465),
    Sketcher.Constraint("DistanceX", -1, 1, 41, 3, 42.47789),
    Sketcher.Constraint("DistanceX", -1, 1, 43, 3, 18.143888),
    Sketcher.Constraint("DistanceY", 24, 2, -1, 1, 17.48567),
    Sketcher.Constraint("DistanceX", -1, 1, 25, 2, 75.283739),
    Sketcher.Constraint("DistanceY", 28, 2, -1, 1, 12.48567),
    Sketcher.Constraint("DistanceY", 32, 2, -1, 1, 7.48567),
    Sketcher.Constraint("DistanceX", -1, 1, 36, 2, 52.973311),
    Sketcher.Constraint("DistanceY", 36, 2, -1, 1, 2.48567),
    Sketcher.Constraint("DistanceY", -1, 1, 40, 2, 2.51433),
    Sketcher.Constraint("DistanceY", -1, 1, 44, 2, 7.51433),
])
pocket3 = doc.addObject("PartDesign::Pocket", "Pocket002")
body.addObject(pocket3)
pocket3.Profile = sketch5
pocket3.setExpression("Length", "Params.pocket3_length")

sketch6 = doc.addObject("Sketcher::SketchObject", "Sketch005")
body.addObject(sketch6)
sketch6.AttachmentSupport = (doc.XY_Plane, [""])
sketch6.MapMode = "FlatFace"
sketch6.AttachmentOffset = App.Placement(App.Vector(0, 0, 5), App.Rotation())
add_polygon(sketch6, [(24.334002, 32.880932), (-24.334002, 32.880932), (-40.642723, 4.633398), (-16.308721, -37.51433), (16.308721, -37.51433), (40.642723, 4.633398)])
sketch6.addConstraint([
    Sketcher.Constraint("Horizontal", 0),
    Sketcher.Constraint("Horizontal", 3),
    Sketcher.Constraint("Symmetric", 1, 2, 4, 2, -2),
    Sketcher.Constraint("Parallel", 1, 4),
    Sketcher.Constraint("Parallel", 2, 5),
    Sketcher.Constraint("Equal", 2, 4),
    Sketcher.Constraint("Angle", 1, Q("-120 deg")),
    Sketcher.Constraint("DistanceX", 0, 2, -1, 1, 24.334002),
    Sketcher.Constraint("DistanceX", 1, 2, 2, 2, 24.334002),
    Sketcher.Constraint("DistanceX", 3, 1, 3, 2, 32.617443),
    Sketcher.Constraint("DistanceY", -1, 1, 0, 2, 32.880932),
])
pocket4 = doc.addObject("PartDesign::Pocket", "Pocket003")
body.addObject(pocket4)
pocket4.Profile = sketch6
pocket4.Type = "ThroughAll"

sketch7 = doc.addObject("Sketcher::SketchObject", "Sketch006")
body.addObject(sketch7)
sketch7.AttachmentSupport = (doc.XY_Plane, [""])
sketch7.MapMode = "FlatFace"
sketch7.AttachmentOffset = App.Placement(App.Vector(0, 0, 5), App.Rotation())
sketch7.addGeometry(Part.Circle(App.Vector(0, -47.51433, 0), App.Vector(0, 0, 1), 2.1), False)
sketch7.addGeometry(Part.Circle(App.Vector(-41.148617, 23.757165, 0), App.Vector(0, 0, 1), 2.1), False)
sketch7.addGeometry(Part.Circle(App.Vector(41.148617, 23.757165, 0), App.Vector(0, 0, 1), 2.1), False)
add_polygon(sketch7, [(-29.306655, 113.979066), (-29.306655, 93.979066), (-24.306655, 93.979066), (-24.306655, 113.979066)])
add_polygon(sketch7, [(24.306655, 113.979066), (24.306655, 93.979066), (29.306655, 93.979066), (29.306655, 113.979066)])
sketch7.addConstraint([
    Sketcher.Constraint("Vertical", 3),
    Sketcher.Constraint("Horizontal", 4),
    Sketcher.Constraint("Vertical", 5),
    Sketcher.Constraint("Horizontal", 6),
    Sketcher.Constraint("Vertical", 7),
    Sketcher.Constraint("Horizontal", 8),
    Sketcher.Constraint("Vertical", 9),
    Sketcher.Constraint("Horizontal", 10),
    Sketcher.Constraint("Equal", 0, 1),
    Sketcher.Constraint("Equal", 1, 2),
    Sketcher.Constraint("Symmetric", 1, 3, 2, 3, -2),
    Sketcher.Constraint("Symmetric", 4, 2, 7, 2, -2),
    Sketcher.Constraint("Symmetric", 6, 2, 9, 2, -2),
    Sketcher.Constraint("PointOnObject", 0, 3, -2),
    Sketcher.Constraint("Diameter", 0, 4.2),
    Sketcher.Constraint("DistanceX", 4, 1, 4, 2, 5.0),
    Sketcher.Constraint("DistanceY", 3, 2, 3, 1, 20.0),
    Sketcher.Constraint("DistanceY", 1, 3, 3, 2, 70.221901),
    Sketcher.Constraint("DistanceY", 0, 3, -1, 1, 47.51433),
    Sketcher.Constraint("DistanceX", 1, 3, 3, 2, 11.841962),
    Sketcher.Constraint("DistanceX", 3, 2, 2, 3, 70.455272),
    Sketcher.Constraint("DistanceY", -1, 1, 1, 3, 23.757165),
])
sketch7.setExpression("Constraints[22]", "Params.sketch7_diameter")
sketch7.setExpression("Constraints[23]", "Params.sketch7_width")
sketch7.setExpression("Constraints[24]", "Params.sketch7_height")
pocket5 = doc.addObject("PartDesign::Pocket", "Pocket004")
body.addObject(pocket5)
pocket5.Profile = sketch7
pocket5.setExpression("Length", "Params.pocket5_length")

doc.recompute()
